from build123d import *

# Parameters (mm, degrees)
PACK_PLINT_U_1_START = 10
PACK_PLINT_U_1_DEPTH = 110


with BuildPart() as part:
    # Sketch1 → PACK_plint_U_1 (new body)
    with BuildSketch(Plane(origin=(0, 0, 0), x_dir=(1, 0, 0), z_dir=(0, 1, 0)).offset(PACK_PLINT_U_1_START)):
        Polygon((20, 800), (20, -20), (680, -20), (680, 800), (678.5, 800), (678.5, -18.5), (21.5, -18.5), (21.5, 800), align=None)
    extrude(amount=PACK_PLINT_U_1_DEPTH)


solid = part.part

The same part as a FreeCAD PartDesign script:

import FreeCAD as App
import Part
import Sketcher

V = App.Vector
Q = App.Units.Quantity

doc = App.newDocument("Part")
body = doc.addObject("PartDesign::Body", "Body")

# Sketch on XZ plane
sketch1 = body.newObject("Sketcher::SketchObject", "Sketch")
sketch1.AttachmentSupport = (doc.getObject("XZ_Plane"), [""])
sketch1.MapMode = "FlatFace"
sketch1.AttachmentOffset = App.Placement(V(0, 0, -10), App.Rotation())
sketch1.addGeometry(Part.LineSegment(V(20, -800, 0), V(20, 20, 0)), False)
sketch1.addGeometry(Part.LineSegment(V(20, 20, 0), V(680, 20, 0)), False)
sketch1.addGeometry(Part.LineSegment(V(680, 20, 0), V(680, -800, 0)), False)
sketch1.addGeometry(Part.LineSegment(V(680, -800, 0), V(678.5, -800, 0)), False)
sketch1.addGeometry(Part.LineSegment(V(678.5, -800, 0), V(678.5, 18.5, 0)), False)
sketch1.addGeometry(Part.LineSegment(V(678.5, 18.5, 0), V(21.5, 18.5, 0)), False)
sketch1.addGeometry(Part.LineSegment(V(21.5, 18.5, 0), V(21.5, -800, 0)), False)
sketch1.addGeometry(Part.LineSegment(V(21.5, -800, 0), V(20, -800, 0)), False)
sketch1.addConstraint(Sketcher.Constraint("Coincident", 0, 2, 1, 1))
sketch1.addConstraint(Sketcher.Constraint("Coincident", 1, 2, 2, 1))
sketch1.addConstraint(Sketcher.Constraint("Coincident", 2, 2, 3, 1))
sketch1.addConstraint(Sketcher.Constraint("Coincident", 3, 2, 4, 1))
sketch1.addConstraint(Sketcher.Constraint("Coincident", 4, 2, 5, 1))
sketch1.addConstraint(Sketcher.Constraint("Coincident", 5, 2, 6, 1))
sketch1.addConstraint(Sketcher.Constraint("Coincident", 6, 2, 7, 1))
sketch1.addConstraint(Sketcher.Constraint("Coincident", 7, 2, 0, 1))
sketch1.addConstraint(Sketcher.Constraint("Vertical", 0))
sketch1.addConstraint(Sketcher.Constraint("Horizontal", 1))
sketch1.addConstraint(Sketcher.Constraint("Vertical", 2))
sketch1.addConstraint(Sketcher.Constraint("Horizontal", 3))
sketch1.addConstraint(Sketcher.Constraint("Vertical", 4))
sketch1.addConstraint(Sketcher.Constraint("Horizontal", 5))
sketch1.addConstraint(Sketcher.Constraint("Vertical", 6))
sketch1.addConstraint(Sketcher.Constraint("Horizontal", 7))
sketch1.addConstraint(Sketcher.Constraint("Horizontal", 3, 2, 6, 2))
sketch1.addConstraint(Sketcher.Constraint("Equal", 3, 7))
sketch1.addConstraint(Sketcher.Constraint("DistanceX", 1, 1, 1, 2, Q("660 mm")))
sketch1.addConstraint(Sketcher.Constraint("DistanceX", 5, 2, 5, 1, Q("657 mm")))
sketch1.addConstraint(Sketcher.Constraint("DistanceY", 0, 1, 0, 2, Q("820 mm")))
sketch1.addConstraint(Sketcher.Constraint("DistanceY", 4, 1, 4, 2, Q("818.5 mm")))
sketch1.addConstraint(Sketcher.Constraint("DistanceX", -1, 1, 0, 2, Q("20 mm")))
sketch1.addConstraint(Sketcher.Constraint("DistanceY", -1, 1, 0, 2, Q("20 mm")))
pad1 = body.newObject("PartDesign::Pad", "Pad")
pad1.Profile = sketch1
pad1.Length = 110
pad1.Reversed = True

doc.recompute()
